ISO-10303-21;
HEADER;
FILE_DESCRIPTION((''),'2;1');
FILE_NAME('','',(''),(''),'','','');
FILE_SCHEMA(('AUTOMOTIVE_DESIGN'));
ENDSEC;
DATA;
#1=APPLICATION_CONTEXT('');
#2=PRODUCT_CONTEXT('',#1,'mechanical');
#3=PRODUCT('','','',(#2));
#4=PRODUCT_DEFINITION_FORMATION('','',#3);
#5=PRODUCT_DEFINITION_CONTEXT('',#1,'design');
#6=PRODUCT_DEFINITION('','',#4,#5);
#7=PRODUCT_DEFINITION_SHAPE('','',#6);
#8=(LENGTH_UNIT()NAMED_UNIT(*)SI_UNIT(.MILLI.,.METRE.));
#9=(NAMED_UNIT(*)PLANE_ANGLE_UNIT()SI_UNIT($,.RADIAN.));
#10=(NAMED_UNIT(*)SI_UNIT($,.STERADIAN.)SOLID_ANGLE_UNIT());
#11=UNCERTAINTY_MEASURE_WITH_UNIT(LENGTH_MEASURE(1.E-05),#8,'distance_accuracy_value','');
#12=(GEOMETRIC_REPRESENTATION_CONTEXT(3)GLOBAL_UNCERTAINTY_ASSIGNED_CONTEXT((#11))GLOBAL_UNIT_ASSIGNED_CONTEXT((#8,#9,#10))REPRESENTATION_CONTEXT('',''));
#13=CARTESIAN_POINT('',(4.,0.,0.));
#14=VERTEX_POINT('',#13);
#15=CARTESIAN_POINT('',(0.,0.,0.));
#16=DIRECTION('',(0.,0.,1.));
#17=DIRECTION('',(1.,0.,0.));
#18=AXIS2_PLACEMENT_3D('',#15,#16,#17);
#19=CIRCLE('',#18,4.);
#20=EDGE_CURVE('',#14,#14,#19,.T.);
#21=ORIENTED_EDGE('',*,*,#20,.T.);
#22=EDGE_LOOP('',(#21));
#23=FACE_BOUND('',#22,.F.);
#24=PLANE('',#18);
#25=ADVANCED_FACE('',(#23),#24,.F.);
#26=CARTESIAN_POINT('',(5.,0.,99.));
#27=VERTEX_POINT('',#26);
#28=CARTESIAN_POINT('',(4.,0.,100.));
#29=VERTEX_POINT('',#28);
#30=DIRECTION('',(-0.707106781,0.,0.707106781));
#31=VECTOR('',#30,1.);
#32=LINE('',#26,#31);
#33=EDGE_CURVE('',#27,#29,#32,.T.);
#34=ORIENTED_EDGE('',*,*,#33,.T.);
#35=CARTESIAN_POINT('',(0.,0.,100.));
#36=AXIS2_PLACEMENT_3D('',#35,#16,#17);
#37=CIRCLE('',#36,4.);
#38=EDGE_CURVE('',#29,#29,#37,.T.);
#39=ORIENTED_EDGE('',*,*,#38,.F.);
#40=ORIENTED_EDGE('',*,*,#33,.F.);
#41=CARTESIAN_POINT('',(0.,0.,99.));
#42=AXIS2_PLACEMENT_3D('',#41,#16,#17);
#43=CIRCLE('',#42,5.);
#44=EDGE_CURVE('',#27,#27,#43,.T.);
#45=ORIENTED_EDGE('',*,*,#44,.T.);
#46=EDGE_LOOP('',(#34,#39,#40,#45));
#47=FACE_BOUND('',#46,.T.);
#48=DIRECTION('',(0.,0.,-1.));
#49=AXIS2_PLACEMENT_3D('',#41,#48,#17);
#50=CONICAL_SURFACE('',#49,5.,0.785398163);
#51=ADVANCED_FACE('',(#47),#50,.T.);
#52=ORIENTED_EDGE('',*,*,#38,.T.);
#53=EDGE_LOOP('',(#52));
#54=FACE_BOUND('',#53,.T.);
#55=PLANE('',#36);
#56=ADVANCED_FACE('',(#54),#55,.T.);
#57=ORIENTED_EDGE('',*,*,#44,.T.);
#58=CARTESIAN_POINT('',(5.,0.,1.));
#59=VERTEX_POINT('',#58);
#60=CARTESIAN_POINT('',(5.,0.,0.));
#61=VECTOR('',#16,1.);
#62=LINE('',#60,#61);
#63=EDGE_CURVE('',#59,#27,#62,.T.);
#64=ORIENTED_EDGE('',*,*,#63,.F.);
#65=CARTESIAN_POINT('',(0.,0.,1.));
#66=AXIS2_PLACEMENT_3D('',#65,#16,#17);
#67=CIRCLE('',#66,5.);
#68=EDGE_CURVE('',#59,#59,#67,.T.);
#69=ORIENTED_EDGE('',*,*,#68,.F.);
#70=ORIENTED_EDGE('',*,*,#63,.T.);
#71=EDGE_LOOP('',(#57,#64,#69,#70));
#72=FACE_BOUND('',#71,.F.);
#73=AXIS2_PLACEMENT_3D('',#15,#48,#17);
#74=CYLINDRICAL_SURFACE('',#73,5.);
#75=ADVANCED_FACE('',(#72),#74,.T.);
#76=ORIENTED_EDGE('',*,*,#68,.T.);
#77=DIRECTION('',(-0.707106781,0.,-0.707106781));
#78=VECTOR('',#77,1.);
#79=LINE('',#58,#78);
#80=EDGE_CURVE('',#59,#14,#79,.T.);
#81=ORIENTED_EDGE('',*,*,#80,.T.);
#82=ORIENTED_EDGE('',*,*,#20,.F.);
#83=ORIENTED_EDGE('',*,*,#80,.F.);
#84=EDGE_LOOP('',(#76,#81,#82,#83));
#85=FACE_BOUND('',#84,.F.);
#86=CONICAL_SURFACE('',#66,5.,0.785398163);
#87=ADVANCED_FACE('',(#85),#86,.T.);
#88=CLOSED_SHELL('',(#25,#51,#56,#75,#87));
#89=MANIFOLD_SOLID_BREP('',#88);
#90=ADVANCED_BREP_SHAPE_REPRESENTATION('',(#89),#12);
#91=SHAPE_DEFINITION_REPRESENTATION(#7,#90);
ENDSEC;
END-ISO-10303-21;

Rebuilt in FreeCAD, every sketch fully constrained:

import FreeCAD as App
import Part
import Sketcher
from FreeCAD import Vector


def edges_at(feature, points):
    """Names of the edges that pass closest to the given points."""
    edges = feature.Shape.Edges
    near = lambda p: min(range(len(edges)), key=lambda i: edges[i].distToShape(Part.Vertex(*p))[0])
    return sorted({f"Edge{near(p) + 1}" for p in points})

doc = App.newDocument("Part")
body = doc.addObject("PartDesign::Body", "Body")

# Sketch on XY plane
sketch1 = doc.addObject("Sketcher::SketchObject", "Sketch")
body.addObject(sketch1)
sketch1.AttachmentSupport = (doc.XY_Plane, [""])
sketch1.MapMode = "FlatFace"
sketch1.addGeometry(Part.Circle(Vector(0, 0, 0), Vector(0, 0, 1), 5), False)
sketch1.addConstraint([
    Sketcher.Constraint("Coincident", 0, 3, -1, 1),
    Sketcher.Constraint("Diameter", 0, 10.0),
])
pad1 = doc.addObject("PartDesign::Pad", "Pad")
body.addObject(pad1)
pad1.Profile = sketch1
pad1.Length = 100
doc.recompute()

chamfer = doc.addObject("PartDesign::Chamfer", "Chamfer")
body.addObject(chamfer)
chamfer.Base = (pad1, edges_at(pad1, [(-5, 0, 0), (-5, 0, 100)]))
chamfer.Size = 1

doc.recompute()
